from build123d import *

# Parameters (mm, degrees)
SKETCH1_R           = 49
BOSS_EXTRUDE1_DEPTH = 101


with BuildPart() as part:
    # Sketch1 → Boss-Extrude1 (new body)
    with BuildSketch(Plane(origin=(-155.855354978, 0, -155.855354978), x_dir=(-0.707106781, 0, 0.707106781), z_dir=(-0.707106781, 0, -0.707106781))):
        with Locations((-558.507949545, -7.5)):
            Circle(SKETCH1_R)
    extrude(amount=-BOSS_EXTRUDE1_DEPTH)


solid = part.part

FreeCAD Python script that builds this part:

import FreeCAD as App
import Part
import Sketcher
Q = App.Units.Quantity

doc = App.newDocument("Part")
params = doc.addObject("Spreadsheet::Sheet", "Params")
for row, (alias, value) in enumerate([
    ("sketch1_diameter", "98 mm"),
    ("pad1_length", "101 mm"),
], start=1):
    params.set(f"A{row}", alias)
    params.set(f"B{row}", "=" + value)
    params.setAlias(f"B{row}", alias)

body = doc.addObject("PartDesign::Body", "Body")

# Sketch on an angled plane
sketch1 = body.newObject("Sketcher::SketchObject", "Sketch")
sketch1.Placement = App.Placement(App.Vector(-155.855355, 0, -155.855355), App.Rotation(App.Vector(-0.707106781, 0, 0.707106781), App.Vector(0, 0.999999999, 0), App.Vector(-0.707106781, 0, -0.707106781), "ZXY"))
sketch1.addGeometry(Part.Circle(App.Vector(-559, -7, 0), App.Vector(0, 0, 1), 49), False)
sketch1.addConstraint(Sketcher.Constraint("Diameter", 0, Q("98 mm")))
sketch1.addConstraint(Sketcher.Constraint("DistanceY", 0, 3, -1, 1, Q("7.5 mm")))
sketch1.addConstraint(Sketcher.Constraint("DistanceX", 0, 3, -1, 1, Q("558.507949 mm")))
sketch1.setExpression("Constraints[0]", "Params.sketch1_diameter")
pad1 = body.newObject("PartDesign::Pad", "Pad")
pad1.Profile = sketch1
pad1.setExpression("Length", "Params.pad1_length")
pad1.Reversed = True

doc.recompute()
